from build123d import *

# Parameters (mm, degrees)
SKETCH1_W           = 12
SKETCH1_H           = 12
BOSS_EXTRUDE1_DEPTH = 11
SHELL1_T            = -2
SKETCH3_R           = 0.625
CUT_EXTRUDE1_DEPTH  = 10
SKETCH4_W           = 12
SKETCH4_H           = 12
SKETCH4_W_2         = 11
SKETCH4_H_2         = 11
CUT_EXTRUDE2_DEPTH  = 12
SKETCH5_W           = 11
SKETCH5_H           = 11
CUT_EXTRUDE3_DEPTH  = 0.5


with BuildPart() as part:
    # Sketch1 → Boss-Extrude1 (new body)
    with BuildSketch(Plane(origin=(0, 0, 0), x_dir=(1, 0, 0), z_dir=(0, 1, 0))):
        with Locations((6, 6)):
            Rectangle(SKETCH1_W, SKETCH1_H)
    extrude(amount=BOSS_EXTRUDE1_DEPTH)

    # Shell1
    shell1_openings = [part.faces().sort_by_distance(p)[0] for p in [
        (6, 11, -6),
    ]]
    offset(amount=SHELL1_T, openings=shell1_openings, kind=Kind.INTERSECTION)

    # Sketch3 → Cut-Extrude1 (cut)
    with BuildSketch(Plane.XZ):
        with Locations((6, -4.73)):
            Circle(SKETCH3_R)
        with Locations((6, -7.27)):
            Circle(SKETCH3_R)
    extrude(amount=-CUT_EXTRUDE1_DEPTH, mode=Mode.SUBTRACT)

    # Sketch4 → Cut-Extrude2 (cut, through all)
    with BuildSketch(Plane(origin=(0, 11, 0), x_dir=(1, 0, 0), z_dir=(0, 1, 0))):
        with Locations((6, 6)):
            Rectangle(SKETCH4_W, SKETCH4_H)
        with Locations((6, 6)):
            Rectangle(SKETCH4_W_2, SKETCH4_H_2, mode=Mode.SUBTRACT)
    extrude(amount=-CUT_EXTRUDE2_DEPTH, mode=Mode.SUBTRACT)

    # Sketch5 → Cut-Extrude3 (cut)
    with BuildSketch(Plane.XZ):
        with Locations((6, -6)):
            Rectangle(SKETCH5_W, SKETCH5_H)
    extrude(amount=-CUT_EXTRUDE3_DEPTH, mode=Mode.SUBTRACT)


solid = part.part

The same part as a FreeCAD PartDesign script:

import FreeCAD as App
import Part
import Sketcher


def faces_at(feature, points):
    """Names of the faces that lie closest to the given points."""
    faces = feature.Shape.Faces
    near = lambda p: min(range(len(faces)), key=lambda i: faces[i].distToShape(Part.Vertex(*p))[0])
    return sorted({f"Face{near(p) + 1}" for p in points})


def add_polygon(sketch, points):
    """Adds a closed chain of lines whose ends are joined by coincident constraints."""
    first, n = sketch.GeometryCount, len(points)
    for a, b in zip(points, points[1:] + points[:1]):
        sketch.addGeometry(Part.LineSegment(App.Vector(*a, 0), App.Vector(*b, 0)), False)
    for i in range(n):
        sketch.addConstraint(Sketcher.Constraint("Coincident", first + i, 2, first + (i + 1) % n, 1))

doc = App.newDocument("Part")
body = doc.addObject("PartDesign::Body", "Body")

sketch1 = body.newObject("Sketcher::SketchObject", "Sketch")
sketch1.AttachmentSupport = (doc.getObject("XZ_Plane"), [""])
sketch1.MapMode = "FlatFace"
add_polygon(sketch1, [(0, -12), (0, 0), (12, 0), (12, -12)])
sketch1.addConstraint([
    Sketcher.Constraint("Vertical", 0),
    Sketcher.Constraint("Horizontal", 1),
    Sketcher.Constraint("Vertical", 2),
    Sketcher.Constraint("Horizontal", 3),
    Sketcher.Constraint("Coincident", 0, 2, -1, 1),
    Sketcher.Constraint("Equal", 3, 0),
    Sketcher.Constraint("DistanceX", 1, 1, 1, 2, 12.0),
])
pad1 = body.newObject("PartDesign::Pad", "Pad")
pad1.Profile = sketch1
pad1.Length = 11
pad1.Reversed = True
doc.recompute()

thickness = body.newObject("PartDesign::Thickness", "Thickness")
thickness.Base = (pad1, faces_at(pad1, [(6, 11, -6)]))
thickness.Value = 2
thickness.Reversed = True
thickness.Join = "Intersection"

sketch2 = body.newObject("Sketcher::SketchObject", "Sketch001")
sketch2.AttachmentSupport = (doc.getObject("XZ_Plane"), [""])
sketch2.MapMode = "FlatFace"
sketch2.addGeometry([
    Part.Circle(App.Vector(6, -4.7, 0), App.Vector(0, 0, 1), 0.6),
    Part.Circle(App.Vector(6, -7.3, 0), App.Vector(0, 0, 1), 0.6),
], False)
sketch2.addConstraint([
    Sketcher.Constraint("Equal", 0, 1),
    Sketcher.Constraint("Vertical", 0, 3, 1, 3),
    Sketcher.Constraint("Diameter", 0, 1.25),
    Sketcher.Constraint("DistanceX", -1, 1, 0, 3, 6.0),
    Sketcher.Constraint("DistanceY", 0, 3, -1, 1, 4.73),
    Sketcher.Constraint("DistanceY", 1, 3, -1, 1, 7.27),
])
pocket1 = body.newObject("PartDesign::Pocket", "Pocket")
pocket1.Profile = sketch2
pocket1.Length = 10

sketch3 = body.newObject("Sketcher::SketchObject", "Sketch002")
sketch3.AttachmentSupport = (doc.getObject("XZ_Plane"), [""])
sketch3.MapMode = "FlatFace"
sketch3.AttachmentOffset = App.Placement(App.Vector(0, 0, -11), App.Rotation())
add_polygon(sketch3, [(0, -12), (0, 0), (12, 0), (12, -12)])
add_polygon(sketch3, [(12, 0), (0, 0), (0, -12), (12, -12)])
sketch3.addConstraint([
    Sketcher.Constraint("Vertical", 0),
    Sketcher.Constraint("Horizontal", 1),
    Sketcher.Constraint("Vertical", 2),
    Sketcher.Constraint("Horizontal", 3),
    Sketcher.Constraint("Horizontal", 4),
    Sketcher.Constraint("Vertical", 5),
    Sketcher.Constraint("Horizontal", 6),
    Sketcher.Constraint("Vertical", 7),
    Sketcher.Constraint("Coincident", 0, 2, -1, 1),
    Sketcher.Constraint("Equal", 3, 0),
    Sketcher.Constraint("Equal", 6, 5),
    Sketcher.Constraint("DistanceX", 1, 1, 1, 2, 12.0),
    Sketcher.Constraint("DistanceX", 4, 2, 4, 1, 11.0),
    Sketcher.Constraint("DistanceX", -1, 1, 4, 2, 0.5),
    Sketcher.Constraint("DistanceY", 4, 2, -1, 1, 0.5),
])
pocket2 = body.newObject("PartDesign::Pocket", "Pocket001")
pocket2.Profile = sketch3
pocket2.Type = "ThroughAll"
pocket2.Reversed = True

sketch4 = body.newObject("Sketcher::SketchObject", "Sketch003")
sketch4.AttachmentSupport = (doc.getObject("XZ_Plane"), [""])
sketch4.MapMode = "FlatFace"
add_polygon(sketch4, [(0, 0), (0, -12), (12, -12), (12, 0)])
sketch4.addConstraint([
    Sketcher.Constraint("Vertical", 0),
    Sketcher.Constraint("Horizontal", 1),
    Sketcher.Constraint("Vertical", 2),
    Sketcher.Constraint("Horizontal", 3),
    Sketcher.Constraint("Equal", 3, 0),
    Sketcher.Constraint("DistanceX", 1, 1, 1, 2, 11.0),
    Sketcher.Constraint("DistanceX", -1, 1, 0, 2, 0.5),
    Sketcher.Constraint("DistanceY", 0, 2, -1, 1, 11.5),
])
pocket3 = body.newObject("PartDesign::Pocket", "Pocket002")
pocket3.Profile = sketch4
pocket3.Length = 0.5

doc.recompute()
